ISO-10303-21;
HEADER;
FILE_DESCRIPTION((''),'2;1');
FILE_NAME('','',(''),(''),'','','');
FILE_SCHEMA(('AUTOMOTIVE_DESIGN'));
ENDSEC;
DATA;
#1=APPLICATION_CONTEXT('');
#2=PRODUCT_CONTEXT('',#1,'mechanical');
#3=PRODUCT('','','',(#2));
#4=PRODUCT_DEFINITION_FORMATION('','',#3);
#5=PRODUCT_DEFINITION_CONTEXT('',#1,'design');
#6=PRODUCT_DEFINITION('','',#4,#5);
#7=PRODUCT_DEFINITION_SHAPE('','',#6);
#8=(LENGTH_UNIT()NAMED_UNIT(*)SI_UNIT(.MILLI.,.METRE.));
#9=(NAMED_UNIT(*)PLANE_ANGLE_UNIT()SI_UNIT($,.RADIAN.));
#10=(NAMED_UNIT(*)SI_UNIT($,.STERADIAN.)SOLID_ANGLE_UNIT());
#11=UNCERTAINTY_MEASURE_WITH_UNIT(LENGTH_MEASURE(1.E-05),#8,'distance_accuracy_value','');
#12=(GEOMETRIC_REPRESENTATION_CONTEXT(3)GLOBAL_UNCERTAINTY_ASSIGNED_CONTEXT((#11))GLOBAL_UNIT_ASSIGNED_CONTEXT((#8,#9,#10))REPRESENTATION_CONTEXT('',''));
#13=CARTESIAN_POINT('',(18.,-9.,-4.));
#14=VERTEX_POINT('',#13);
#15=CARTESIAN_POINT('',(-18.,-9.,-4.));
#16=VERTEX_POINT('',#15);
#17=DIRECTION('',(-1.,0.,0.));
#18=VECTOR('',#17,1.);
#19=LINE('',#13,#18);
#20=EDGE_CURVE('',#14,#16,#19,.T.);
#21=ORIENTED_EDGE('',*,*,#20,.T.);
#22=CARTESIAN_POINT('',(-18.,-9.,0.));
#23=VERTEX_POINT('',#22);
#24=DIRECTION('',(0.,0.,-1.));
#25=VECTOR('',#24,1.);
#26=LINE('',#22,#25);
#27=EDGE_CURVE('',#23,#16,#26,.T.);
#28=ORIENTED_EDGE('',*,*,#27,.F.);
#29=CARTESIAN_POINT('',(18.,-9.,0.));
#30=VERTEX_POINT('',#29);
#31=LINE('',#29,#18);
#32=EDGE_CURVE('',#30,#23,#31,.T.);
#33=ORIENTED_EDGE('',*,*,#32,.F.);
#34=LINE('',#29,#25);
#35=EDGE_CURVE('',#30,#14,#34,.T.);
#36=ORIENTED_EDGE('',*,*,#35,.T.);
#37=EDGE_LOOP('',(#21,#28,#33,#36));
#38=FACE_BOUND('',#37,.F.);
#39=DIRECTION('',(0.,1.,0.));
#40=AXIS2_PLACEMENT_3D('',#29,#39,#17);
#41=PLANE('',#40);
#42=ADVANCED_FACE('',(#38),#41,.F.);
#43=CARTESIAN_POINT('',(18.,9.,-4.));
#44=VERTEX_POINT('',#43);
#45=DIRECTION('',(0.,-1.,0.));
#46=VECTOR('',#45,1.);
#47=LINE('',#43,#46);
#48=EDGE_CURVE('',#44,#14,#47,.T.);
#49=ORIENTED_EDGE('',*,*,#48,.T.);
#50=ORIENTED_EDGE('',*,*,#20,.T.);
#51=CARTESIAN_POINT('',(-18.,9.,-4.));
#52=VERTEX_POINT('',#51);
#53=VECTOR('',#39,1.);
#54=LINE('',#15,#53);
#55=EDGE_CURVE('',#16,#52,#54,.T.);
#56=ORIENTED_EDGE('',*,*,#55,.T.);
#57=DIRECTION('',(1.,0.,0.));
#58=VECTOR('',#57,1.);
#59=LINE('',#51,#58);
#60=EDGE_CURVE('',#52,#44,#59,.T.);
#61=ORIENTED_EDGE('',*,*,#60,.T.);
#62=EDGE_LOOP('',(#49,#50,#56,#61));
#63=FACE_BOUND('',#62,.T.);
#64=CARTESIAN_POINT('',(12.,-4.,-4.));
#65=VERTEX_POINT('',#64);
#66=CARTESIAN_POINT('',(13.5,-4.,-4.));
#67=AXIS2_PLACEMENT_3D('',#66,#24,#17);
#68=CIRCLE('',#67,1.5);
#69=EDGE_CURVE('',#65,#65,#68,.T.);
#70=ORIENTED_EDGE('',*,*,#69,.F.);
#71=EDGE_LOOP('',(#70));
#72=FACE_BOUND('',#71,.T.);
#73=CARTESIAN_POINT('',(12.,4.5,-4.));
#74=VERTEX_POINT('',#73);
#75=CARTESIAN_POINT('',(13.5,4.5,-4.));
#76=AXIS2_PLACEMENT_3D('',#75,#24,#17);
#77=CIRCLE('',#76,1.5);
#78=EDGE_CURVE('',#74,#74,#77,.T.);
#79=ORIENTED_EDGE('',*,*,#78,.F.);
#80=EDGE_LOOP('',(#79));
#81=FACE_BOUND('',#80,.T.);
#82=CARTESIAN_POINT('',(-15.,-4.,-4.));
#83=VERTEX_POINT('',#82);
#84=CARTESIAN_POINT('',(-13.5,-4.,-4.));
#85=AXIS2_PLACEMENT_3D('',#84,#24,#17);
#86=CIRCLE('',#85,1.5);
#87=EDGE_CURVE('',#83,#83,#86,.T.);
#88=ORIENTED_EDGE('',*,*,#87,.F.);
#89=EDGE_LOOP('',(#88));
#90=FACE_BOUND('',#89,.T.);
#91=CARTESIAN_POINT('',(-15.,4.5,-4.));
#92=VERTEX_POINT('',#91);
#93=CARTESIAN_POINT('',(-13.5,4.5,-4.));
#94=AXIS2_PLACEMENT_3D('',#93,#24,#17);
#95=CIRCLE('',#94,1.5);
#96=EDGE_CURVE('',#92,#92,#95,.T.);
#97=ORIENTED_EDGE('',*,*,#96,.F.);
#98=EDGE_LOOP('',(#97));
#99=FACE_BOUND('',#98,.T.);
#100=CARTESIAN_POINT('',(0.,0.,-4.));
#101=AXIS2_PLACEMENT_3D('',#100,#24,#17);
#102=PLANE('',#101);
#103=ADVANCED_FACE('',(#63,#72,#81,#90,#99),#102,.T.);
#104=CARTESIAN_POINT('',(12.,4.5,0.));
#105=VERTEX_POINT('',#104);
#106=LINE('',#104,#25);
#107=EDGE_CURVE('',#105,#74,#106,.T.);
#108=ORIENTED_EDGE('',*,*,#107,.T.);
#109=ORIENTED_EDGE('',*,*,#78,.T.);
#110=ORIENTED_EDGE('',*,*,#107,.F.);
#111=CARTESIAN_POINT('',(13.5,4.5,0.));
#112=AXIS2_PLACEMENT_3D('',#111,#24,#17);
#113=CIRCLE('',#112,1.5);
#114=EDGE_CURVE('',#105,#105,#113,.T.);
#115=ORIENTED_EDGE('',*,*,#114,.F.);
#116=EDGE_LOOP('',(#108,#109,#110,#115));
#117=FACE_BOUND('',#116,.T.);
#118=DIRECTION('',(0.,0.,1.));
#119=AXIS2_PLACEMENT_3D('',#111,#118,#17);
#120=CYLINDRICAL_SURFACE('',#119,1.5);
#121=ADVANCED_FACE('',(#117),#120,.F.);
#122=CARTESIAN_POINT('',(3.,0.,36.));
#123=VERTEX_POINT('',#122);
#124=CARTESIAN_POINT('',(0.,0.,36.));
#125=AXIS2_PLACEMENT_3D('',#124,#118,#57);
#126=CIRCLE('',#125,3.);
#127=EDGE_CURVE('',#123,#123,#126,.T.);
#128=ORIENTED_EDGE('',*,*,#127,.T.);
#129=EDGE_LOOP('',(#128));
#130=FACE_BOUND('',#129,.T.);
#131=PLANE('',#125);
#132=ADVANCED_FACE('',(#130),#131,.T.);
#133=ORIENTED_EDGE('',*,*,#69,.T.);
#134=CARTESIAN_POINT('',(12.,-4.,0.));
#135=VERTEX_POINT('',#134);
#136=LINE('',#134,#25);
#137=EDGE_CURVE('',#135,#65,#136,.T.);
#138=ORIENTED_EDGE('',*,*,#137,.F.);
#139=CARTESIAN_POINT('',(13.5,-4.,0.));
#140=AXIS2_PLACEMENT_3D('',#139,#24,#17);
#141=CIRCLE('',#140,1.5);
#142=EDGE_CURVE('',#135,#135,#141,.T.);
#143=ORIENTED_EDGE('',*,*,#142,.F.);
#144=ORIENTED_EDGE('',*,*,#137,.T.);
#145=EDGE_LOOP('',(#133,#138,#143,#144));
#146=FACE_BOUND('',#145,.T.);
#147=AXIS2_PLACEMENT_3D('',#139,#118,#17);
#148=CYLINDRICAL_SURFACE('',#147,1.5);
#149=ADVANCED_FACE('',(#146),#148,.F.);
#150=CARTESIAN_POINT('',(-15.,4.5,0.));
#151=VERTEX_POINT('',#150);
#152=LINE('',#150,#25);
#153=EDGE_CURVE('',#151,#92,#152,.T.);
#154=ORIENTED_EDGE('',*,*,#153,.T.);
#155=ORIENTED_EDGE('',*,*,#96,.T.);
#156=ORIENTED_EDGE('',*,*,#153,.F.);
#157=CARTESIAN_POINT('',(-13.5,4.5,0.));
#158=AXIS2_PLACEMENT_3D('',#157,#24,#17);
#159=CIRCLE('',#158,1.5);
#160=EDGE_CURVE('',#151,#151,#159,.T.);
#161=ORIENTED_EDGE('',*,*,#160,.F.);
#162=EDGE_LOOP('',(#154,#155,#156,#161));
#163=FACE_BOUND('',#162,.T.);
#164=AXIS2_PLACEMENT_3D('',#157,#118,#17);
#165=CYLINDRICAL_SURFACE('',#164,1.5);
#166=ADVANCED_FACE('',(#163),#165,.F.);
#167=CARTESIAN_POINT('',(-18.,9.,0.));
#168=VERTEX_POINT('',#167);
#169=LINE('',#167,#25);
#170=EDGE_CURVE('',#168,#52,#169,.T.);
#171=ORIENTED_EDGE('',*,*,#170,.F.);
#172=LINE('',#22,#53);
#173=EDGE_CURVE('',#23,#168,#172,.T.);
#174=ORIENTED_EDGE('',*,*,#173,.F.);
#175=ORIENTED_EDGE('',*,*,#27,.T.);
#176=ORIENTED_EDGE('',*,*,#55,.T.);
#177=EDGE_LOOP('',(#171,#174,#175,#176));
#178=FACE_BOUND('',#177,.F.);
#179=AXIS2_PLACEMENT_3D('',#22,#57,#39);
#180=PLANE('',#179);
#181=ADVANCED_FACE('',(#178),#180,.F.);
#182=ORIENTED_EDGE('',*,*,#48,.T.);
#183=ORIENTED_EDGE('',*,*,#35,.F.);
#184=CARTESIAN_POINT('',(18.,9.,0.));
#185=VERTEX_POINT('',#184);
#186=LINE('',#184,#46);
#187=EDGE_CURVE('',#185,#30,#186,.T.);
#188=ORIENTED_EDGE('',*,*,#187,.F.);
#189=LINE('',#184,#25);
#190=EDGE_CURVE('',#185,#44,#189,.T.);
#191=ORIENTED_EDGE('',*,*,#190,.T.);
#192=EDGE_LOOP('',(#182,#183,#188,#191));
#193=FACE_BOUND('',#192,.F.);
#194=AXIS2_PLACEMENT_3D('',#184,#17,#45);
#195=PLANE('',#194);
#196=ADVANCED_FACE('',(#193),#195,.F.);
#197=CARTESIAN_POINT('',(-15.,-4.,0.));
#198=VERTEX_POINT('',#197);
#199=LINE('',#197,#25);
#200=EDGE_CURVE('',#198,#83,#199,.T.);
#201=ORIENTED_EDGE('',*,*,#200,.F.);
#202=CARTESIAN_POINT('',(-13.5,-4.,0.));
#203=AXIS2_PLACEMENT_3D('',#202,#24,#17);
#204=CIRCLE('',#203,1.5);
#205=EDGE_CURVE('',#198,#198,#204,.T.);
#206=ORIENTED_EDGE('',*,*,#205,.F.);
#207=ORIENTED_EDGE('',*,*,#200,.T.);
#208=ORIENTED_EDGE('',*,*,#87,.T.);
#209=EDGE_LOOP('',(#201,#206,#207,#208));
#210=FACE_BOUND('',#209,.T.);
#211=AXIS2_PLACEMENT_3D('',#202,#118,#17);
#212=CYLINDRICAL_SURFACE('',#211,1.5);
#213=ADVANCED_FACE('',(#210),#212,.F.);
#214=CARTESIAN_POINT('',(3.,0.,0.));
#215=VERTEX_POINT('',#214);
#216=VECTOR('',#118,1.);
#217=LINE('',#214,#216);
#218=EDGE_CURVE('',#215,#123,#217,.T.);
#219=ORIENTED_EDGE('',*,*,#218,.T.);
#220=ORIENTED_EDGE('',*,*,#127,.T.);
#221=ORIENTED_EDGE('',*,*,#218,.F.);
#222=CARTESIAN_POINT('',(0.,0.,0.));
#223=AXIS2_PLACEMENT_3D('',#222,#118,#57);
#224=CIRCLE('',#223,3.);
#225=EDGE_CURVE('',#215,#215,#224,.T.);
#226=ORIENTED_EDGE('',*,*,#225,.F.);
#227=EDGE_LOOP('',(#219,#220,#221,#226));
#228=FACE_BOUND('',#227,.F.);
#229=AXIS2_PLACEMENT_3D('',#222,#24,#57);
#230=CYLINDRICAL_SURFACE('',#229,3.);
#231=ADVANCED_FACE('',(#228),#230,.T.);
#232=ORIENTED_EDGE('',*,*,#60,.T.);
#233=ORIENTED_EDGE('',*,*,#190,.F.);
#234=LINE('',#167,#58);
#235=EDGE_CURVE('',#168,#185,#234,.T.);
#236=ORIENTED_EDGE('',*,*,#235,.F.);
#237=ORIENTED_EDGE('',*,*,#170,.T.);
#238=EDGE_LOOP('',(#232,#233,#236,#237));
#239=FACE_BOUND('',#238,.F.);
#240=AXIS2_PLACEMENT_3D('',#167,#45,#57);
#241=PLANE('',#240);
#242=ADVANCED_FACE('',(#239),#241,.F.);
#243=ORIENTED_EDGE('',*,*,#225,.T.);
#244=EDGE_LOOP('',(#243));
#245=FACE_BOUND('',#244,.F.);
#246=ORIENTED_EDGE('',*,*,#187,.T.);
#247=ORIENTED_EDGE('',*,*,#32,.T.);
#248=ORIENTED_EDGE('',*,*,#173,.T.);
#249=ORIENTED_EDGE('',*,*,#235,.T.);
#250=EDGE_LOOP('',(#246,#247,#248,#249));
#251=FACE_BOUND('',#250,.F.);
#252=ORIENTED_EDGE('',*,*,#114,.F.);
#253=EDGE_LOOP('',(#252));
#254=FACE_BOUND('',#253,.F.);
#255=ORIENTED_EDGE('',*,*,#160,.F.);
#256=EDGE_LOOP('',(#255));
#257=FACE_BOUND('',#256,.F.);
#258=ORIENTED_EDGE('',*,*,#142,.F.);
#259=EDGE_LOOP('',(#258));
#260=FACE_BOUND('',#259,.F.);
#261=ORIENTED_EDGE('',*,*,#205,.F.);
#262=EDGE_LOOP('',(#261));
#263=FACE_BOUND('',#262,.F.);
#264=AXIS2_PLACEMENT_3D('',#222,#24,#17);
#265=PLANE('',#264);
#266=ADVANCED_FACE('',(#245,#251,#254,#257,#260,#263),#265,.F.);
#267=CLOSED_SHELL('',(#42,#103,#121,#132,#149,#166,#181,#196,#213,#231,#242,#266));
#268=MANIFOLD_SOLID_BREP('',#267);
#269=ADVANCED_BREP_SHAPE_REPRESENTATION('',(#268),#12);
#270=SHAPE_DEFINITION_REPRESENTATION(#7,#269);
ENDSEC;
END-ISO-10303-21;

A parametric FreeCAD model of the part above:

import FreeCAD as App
import Part
import Sketcher
from FreeCAD import Vector

doc = App.newDocument("Part")
params = doc.addObject("Spreadsheet::Sheet", "Params")
for row, (alias, value) in enumerate([
    ("sketch1_diameter", "6 mm"),
    ("pad1_length", "36 mm"),
    ("sketch2_diameter", "3 mm"),
    ("sketch2_width", "36 mm"),
    ("sketch2_height", "18 mm"),
    ("pad2_length", "4 mm"),
], start=1):
    params.set(f"A{row}", alias)
    params.set(f"B{row}", "=" + value)
    params.setAlias(f"B{row}", alias)

body = doc.addObject("PartDesign::Body", "Body")

# Sketch on XY plane
sketch1 = body.newObject("Sketcher::SketchObject", "Sketch")
sketch1.AttachmentSupport = (doc.getObject("XY_Plane"), [""])
sketch1.MapMode = "FlatFace"
sketch1.addGeometry(Part.Circle(Vector(0, 0, 0), Vector(0, 0, 1), 3), False)
sketch1.addConstraint([
    Sketcher.Constraint("Coincident", 0, 3, -1, 1),
    Sketcher.Constraint("Diameter", 0, 6.0),
])
sketch1.setExpression("Constraints[1]", "Params.sketch1_diameter")
pad1 = body.newObject("PartDesign::Pad", "Pad")
pad1.Profile = sketch1
pad1.setExpression("Length", "Params.pad1_length")

# Sketch on XY plane
sketch2 = body.newObject("Sketcher::SketchObject", "Sketch001")
sketch2.AttachmentSupport = (doc.getObject("XY_Plane"), [""])
sketch2.MapMode = "FlatFace"
sketch2.addGeometry([
    Part.LineSegment(Vector(18, 9, 0), Vector(18, -9, 0)),  # 0
    Part.LineSegment(Vector(18, -9, 0), Vector(-18, -9, 0)),  # 1
    Part.LineSegment(Vector(-18, -9, 0), Vector(-18, 9, 0)),  # 2
    Part.LineSegment(Vector(-18, 9, 0), Vector(18, 9, 0)),  # 3
    Part.Circle(Vector(13.5, -4, 0), Vector(0, 0, 1), 1.5),  # 4
    Part.Circle(Vector(-13.5, -4, 0), Vector(0, 0, 1), 1.5),  # 5
    Part.Circle(Vector(13.5, 4.5, 0), Vector(0, 0, 1), 1.5),  # 6
    Part.Circle(Vector(-13.5, 4.5, 0), Vector(0, 0, 1), 1.5),  # 7
], False)
sketch2.addConstraint([
    Sketcher.Constraint("Coincident", 0, 2, 1, 1),
    Sketcher.Constraint("Coincident", 1, 2, 2, 1),
    Sketcher.Constraint("Coincident", 2, 2, 3, 1),
    Sketcher.Constraint("Coincident", 3, 2, 0, 1),
    Sketcher.Constraint("Vertical", 0),
    Sketcher.Constraint("Horizontal", 1),
    Sketcher.Constraint("Vertical", 2),
    Sketcher.Constraint("Horizontal", 3),
    Sketcher.Constraint("Equal", 4, 5),
    Sketcher.Constraint("Equal", 5, 6),
    Sketcher.Constraint("Equal", 6, 7),
    Sketcher.Constraint("Symmetric", 0, 2, 2, 2, -1, 1),
    Sketcher.Constraint("Symmetric", 4, 3, 5, 3, -2),
    Sketcher.Constraint("Symmetric", 6, 3, 7, 3, -2),
    Sketcher.Constraint("Vertical", 4, 3, 6, 3),
    Sketcher.Constraint("Diameter", 4, 3.0),
    Sketcher.Constraint("DistanceX", 1, 2, 1, 1, 36.0),
    Sketcher.Constraint("DistanceY", 0, 2, 0, 1, 18.0),
    Sketcher.Constraint("DistanceY", 4, 3, -1, 1, 4.0),
    Sketcher.Constraint("DistanceX", 5, 3, 4, 3, 27.0),
    Sketcher.Constraint("DistanceY", -1, 1, 6, 3, 4.5),
])
sketch2.setExpression("Constraints[15]", "Params.sketch2_diameter")
sketch2.setExpression("Constraints[16]", "Params.sketch2_width")
sketch2.setExpression("Constraints[17]", "Params.sketch2_height")
pad2 = body.newObject("PartDesign::Pad", "Pad001")
pad2.Profile = sketch2
pad2.setExpression("Length", "Params.pad2_length")
pad2.Reversed = True

doc.recompute()
